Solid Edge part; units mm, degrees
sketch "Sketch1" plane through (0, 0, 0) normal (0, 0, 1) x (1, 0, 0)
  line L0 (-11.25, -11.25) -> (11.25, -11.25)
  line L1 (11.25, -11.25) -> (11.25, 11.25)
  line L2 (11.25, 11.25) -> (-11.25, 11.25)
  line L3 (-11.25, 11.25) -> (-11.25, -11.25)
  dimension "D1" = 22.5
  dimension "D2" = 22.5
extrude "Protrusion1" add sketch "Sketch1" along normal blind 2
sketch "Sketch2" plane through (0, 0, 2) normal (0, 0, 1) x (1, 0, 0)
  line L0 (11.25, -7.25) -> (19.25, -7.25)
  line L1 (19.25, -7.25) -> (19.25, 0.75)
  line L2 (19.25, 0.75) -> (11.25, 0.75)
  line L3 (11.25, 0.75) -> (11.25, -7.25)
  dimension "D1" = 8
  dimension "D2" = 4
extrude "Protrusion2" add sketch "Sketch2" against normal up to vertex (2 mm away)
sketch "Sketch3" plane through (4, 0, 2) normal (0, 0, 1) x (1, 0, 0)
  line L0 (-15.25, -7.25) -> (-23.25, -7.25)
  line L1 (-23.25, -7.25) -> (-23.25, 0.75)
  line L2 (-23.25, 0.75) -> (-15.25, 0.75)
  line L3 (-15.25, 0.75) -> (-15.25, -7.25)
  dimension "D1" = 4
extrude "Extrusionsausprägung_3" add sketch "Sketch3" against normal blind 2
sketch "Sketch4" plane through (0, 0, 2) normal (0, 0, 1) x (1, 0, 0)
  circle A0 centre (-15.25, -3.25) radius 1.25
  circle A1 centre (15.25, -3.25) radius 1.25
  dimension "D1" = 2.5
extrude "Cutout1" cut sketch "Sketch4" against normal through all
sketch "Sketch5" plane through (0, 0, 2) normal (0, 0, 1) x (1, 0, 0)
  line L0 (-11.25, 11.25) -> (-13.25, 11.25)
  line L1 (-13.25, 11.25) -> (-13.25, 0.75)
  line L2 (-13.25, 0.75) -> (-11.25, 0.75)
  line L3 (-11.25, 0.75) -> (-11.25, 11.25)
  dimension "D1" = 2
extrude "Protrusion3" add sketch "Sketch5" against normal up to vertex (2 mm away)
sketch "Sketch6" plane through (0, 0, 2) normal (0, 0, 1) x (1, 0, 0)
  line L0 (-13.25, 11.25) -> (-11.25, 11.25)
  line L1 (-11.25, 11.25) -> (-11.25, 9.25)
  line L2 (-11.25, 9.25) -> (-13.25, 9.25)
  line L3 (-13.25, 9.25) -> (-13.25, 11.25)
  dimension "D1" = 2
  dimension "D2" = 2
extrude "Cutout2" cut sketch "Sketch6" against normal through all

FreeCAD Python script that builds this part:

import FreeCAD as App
import Part
import Sketcher

V = App.Vector
Q = App.Units.Quantity

doc = App.newDocument("Part")
params = doc.addObject("Spreadsheet::Sheet", "Params")
for row, (alias, value) in enumerate([
    ("pad1_length", "2 mm"),
    ("sketch2_width", "8 mm"),
    ("pad2_length", "2 mm"),
    ("sketch3_width", "8 mm"),
    ("pad3_length", "2 mm"),
    ("sketch4_diameter", "2.5 mm"),
    ("sketch5_width", "2 mm"),
    ("sketch5_height", "10.5 mm"),
    ("pad4_length", "2 mm"),
    ("sketch6_width", "2 mm"),
], start=1):
    params.set(f"A{row}", alias)
    params.set(f"B{row}", "=" + value)
    params.setAlias(f"B{row}", alias)

body = doc.addObject("PartDesign::Body", "Body")

sketch1 = doc.addObject("Sketcher::SketchObject", "Sketch")
body.addObject(sketch1)
sketch1.AttachmentSupport = (doc.XY_Plane, [""])
sketch1.MapMode = "FlatFace"
sketch1.addGeometry(Part.LineSegment(V(-11, 11, 0), V(-11, -11, 0)), False)
sketch1.addGeometry(Part.LineSegment(V(-11, -11, 0), V(11, -11, 0)), False)
sketch1.addGeometry(Part.LineSegment(V(11, -11, 0), V(11, 11, 0)), False)
sketch1.addGeometry(Part.LineSegment(V(11, 11, 0), V(-11, 11, 0)), False)
sketch1.addConstraint(Sketcher.Constraint("Coincident", 0, 2, 1, 1))
sketch1.addConstraint(Sketcher.Constraint("Coincident", 1, 2, 2, 1))
sketch1.addConstraint(Sketcher.Constraint("Coincident", 2, 2, 3, 1))
sketch1.addConstraint(Sketcher.Constraint("Coincident", 3, 2, 0, 1))
sketch1.addConstraint(Sketcher.Constraint("Vertical", 0))
sketch1.addConstraint(Sketcher.Constraint("Horizontal", 1))
sketch1.addConstraint(Sketcher.Constraint("Vertical", 2))
sketch1.addConstraint(Sketcher.Constraint("Horizontal", 3))
sketch1.addConstraint(Sketcher.Constraint("Symmetric", 0, 2, 2, 2, -1, 1))
sketch1.addConstraint(Sketcher.Constraint("Equal", 3, 0))
sketch1.addConstraint(Sketcher.Constraint("DistanceX", 0, 2, -1, 1, Q("11.25 mm")))
pad1 = doc.addObject("PartDesign::Pad", "Pad")
body.addObject(pad1)
pad1.Profile = sketch1
pad1.setExpression("Length", "Params.pad1_length")

sketch2 = doc.addObject("Sketcher::SketchObject", "Sketch001")
body.addObject(sketch2)
sketch2.AttachmentSupport = (doc.XY_Plane, [""])
sketch2.MapMode = "FlatFace"
sketch2.AttachmentOffset = App.Placement(V(0, 0, 2), App.Rotation())
sketch2.addGeometry(Part.LineSegment(V(11, 1, 0), V(11, -7, 0)), False)
sketch2.addGeometry(Part.LineSegment(V(11, -7, 0), V(19, -7, 0)), False)
sketch2.addGeometry(Part.LineSegment(V(19, -7, 0), V(19, 1, 0)), False)
sketch2.addGeometry(Part.LineSegment(V(19, 1, 0), V(11, 1, 0)), False)
sketch2.addConstraint(Sketcher.Constraint("Coincident", 0, 2, 1, 1))
sketch2.addConstraint(Sketcher.Constraint("Coincident", 1, 2, 2, 1))
sketch2.addConstraint(Sketcher.Constraint("Coincident", 2, 2, 3, 1))
sketch2.addConstraint(Sketcher.Constraint("Coincident", 3, 2, 0, 1))
sketch2.addConstraint(Sketcher.Constraint("Vertical", 0))
sketch2.addConstraint(Sketcher.Constraint("Horizontal", 1))
sketch2.addConstraint(Sketcher.Constraint("Vertical", 2))
sketch2.addConstraint(Sketcher.Constraint("Horizontal", 3))
sketch2.addConstraint(Sketcher.Constraint("Equal", 3, 0))
sketch2.addConstraint(Sketcher.Constraint("DistanceX", 1, 1, 1, 2, Q("8 mm")))
sketch2.addConstraint(Sketcher.Constraint("DistanceX", -1, 1, 1, 2, Q("19.25 mm")))
sketch2.addConstraint(Sketcher.Constraint("DistanceY", 0, 2, -1, 1, Q("7.25 mm")))
sketch2.setExpression("Constraints[9]", "Params.sketch2_width")
pad2 = doc.addObject("PartDesign::Pad", "Pad001")
body.addObject(pad2)
pad2.Profile = sketch2
pad2.setExpression("Length", "Params.pad2_length")
pad2.Reversed = True

sketch3 = doc.addObject("Sketcher::SketchObject", "Sketch002")
body.addObject(sketch3)
sketch3.AttachmentSupport = (doc.XY_Plane, [""])
sketch3.MapMode = "FlatFace"
sketch3.AttachmentOffset = App.Placement(V(0, 0, 2), App.Rotation())
sketch3.addGeometry(Part.LineSegment(V(-19, -7, 0), V(-11, -7, 0)), False)
sketch3.addGeometry(Part.LineSegment(V(-11, -7, 0), V(-11, 1, 0)), False)
sketch3.addGeometry(Part.LineSegment(V(-11, 1, 0), V(-19, 1, 0)), False)
sketch3.addGeometry(Part.LineSegment(V(-19, 1, 0), V(-19, -7, 0)), False)
sketch3.addConstraint(Sketcher.Constraint("Coincident", 0, 2, 1, 1))
sketch3.addConstraint(Sketcher.Constraint("Coincident", 1, 2, 2, 1))
sketch3.addConstraint(Sketcher.Constraint("Coincident", 2, 2, 3, 1))
sketch3.addConstraint(Sketcher.Constraint("Coincident", 3, 2, 0, 1))
sketch3.addConstraint(Sketcher.Constraint("Horizontal", 0))
sketch3.addConstraint(Sketcher.Constraint("Vertical", 1))
sketch3.addConstraint(Sketcher.Constraint("Horizontal", 2))
sketch3.addConstraint(Sketcher.Constraint("Vertical", 3))
sketch3.addConstraint(Sketcher.Constraint("Equal", 2, 1))
sketch3.addConstraint(Sketcher.Constraint("DistanceX", 0, 1, 0, 2, Q("8 mm")))
sketch3.addConstraint(Sketcher.Constraint("DistanceX", 0, 2, -1, 1, Q("11.25 mm")))
sketch3.addConstraint(Sketcher.Constraint("DistanceY", 0, 2, -1, 1, Q("7.25 mm")))
sketch3.setExpression("Constraints[9]", "Params.sketch3_width")
pad3 = doc.addObject("PartDesign::Pad", "Pad002")
body.addObject(pad3)
pad3.Profile = sketch3
pad3.setExpression("Length", "Params.pad3_length")
pad3.Reversed = True

sketch4 = doc.addObject("Sketcher::SketchObject", "Sketch003")
body.addObject(sketch4)
sketch4.AttachmentSupport = (doc.XY_Plane, [""])
sketch4.MapMode = "FlatFace"
sketch4.AttachmentOffset = App.Placement(V(0, 0, 2), App.Rotation())
sketch4.addGeometry(Part.Circle(V(-15.2, -3.2, 0), V(0, 0, 1), 1.2), False)
sketch4.addGeometry(Part.Circle(V(15.2, -3.2, 0), V(0, 0, 1), 1.2), False)
sketch4.addConstraint(Sketcher.Constraint("Equal", 0, 1))
sketch4.addConstraint(Sketcher.Constraint("Symmetric", 0, 3, 1, 3, -2))
sketch4.addConstraint(Sketcher.Constraint("Diameter", 0, Q("2.5 mm")))
sketch4.addConstraint(Sketcher.Constraint("DistanceX", 0, 3, 1, 3, Q("30.5 mm")))
sketch4.addConstraint(Sketcher.Constraint("DistanceY", 0, 3, -1, 1, Q("3.25 mm")))
sketch4.setExpression("Constraints[2]", "Params.sketch4_diameter")
pocket1 = doc.addObject("PartDesign::Pocket", "Pocket")
body.addObject(pocket1)
pocket1.Profile = sketch4
pocket1.Type = "ThroughAll"

sketch5 = doc.addObject("Sketcher::SketchObject", "Sketch004")
body.addObject(sketch5)
sketch5.AttachmentSupport = (doc.XY_Plane, [""])
sketch5.MapMode = "FlatFace"
sketch5.AttachmentOffset = App.Placement(V(0, 0, 2), App.Rotation())
sketch5.addGeometry(Part.LineSegment(V(-11.2, 0.8, 0), V(-11.2, 11.2, 0)), False)
sketch5.addGeometry(Part.LineSegment(V(-11.2, 11.2, 0), V(-13.2, 11.2, 0)), False)
sketch5.addGeometry(Part.LineSegment(V(-13.2, 11.2, 0), V(-13.2, 0.8, 0)), False)
sketch5.addGeometry(Part.LineSegment(V(-13.2, 0.8, 0), V(-11.2, 0.8, 0)), False)
sketch5.addConstraint(Sketcher.Constraint("Coincident", 0, 2, 1, 1))
sketch5.addConstraint(Sketcher.Constraint("Coincident", 1, 2, 2, 1))
sketch5.addConstraint(Sketcher.Constraint("Coincident", 2, 2, 3, 1))
sketch5.addConstraint(Sketcher.Constraint("Coincident", 3, 2, 0, 1))
sketch5.addConstraint(Sketcher.Constraint("Vertical", 0))
sketch5.addConstraint(Sketcher.Constraint("Horizontal", 1))
sketch5.addConstraint(Sketcher.Constraint("Vertical", 2))
sketch5.addConstraint(Sketcher.Constraint("Horizontal", 3))
sketch5.addConstraint(Sketcher.Constraint("DistanceX", 1, 2, 1, 1, Q("2 mm")))
sketch5.addConstraint(Sketcher.Constraint("DistanceX", 0, 2, -1, 1, Q("11.25 mm")))
sketch5.addConstraint(Sketcher.Constraint("DistanceY", -1, 1, 0, 2, Q("11.25 mm")))
sketch5.addConstraint(Sketcher.Constraint("DistanceY", 0, 1, 0, 2, Q("10.5 mm")))
sketch5.setExpression("Constraints[8]", "Params.sketch5_width")
sketch5.setExpression("Constraints[11]", "Params.sketch5_height")
pad4 = doc.addObject("PartDesign::Pad", "Pad003")
body.addObject(pad4)
pad4.Profile = sketch5
pad4.setExpression("Length", "Params.pad4_length")
pad4.Reversed = True

sketch6 = doc.addObject("Sketcher::SketchObject", "Sketch005")
body.addObject(sketch6)
sketch6.AttachmentSupport = (doc.XY_Plane, [""])
sketch6.MapMode = "FlatFace"
sketch6.AttachmentOffset = App.Placement(V(0, 0, 2), App.Rotation())
sketch6.addGeometry(Part.LineSegment(V(-11.2, 11.2, 0), V(-13.2, 11.2, 0)), False)
sketch6.addGeometry(Part.LineSegment(V(-13.2, 11.2, 0), V(-13.2, 9.2, 0)), False)
sketch6.addGeometry(Part.LineSegment(V(-13.2, 9.2, 0), V(-11.2, 9.2, 0)), False)
sketch6.addGeometry(Part.LineSegment(V(-11.2, 9.2, 0), V(-11.2, 11.2, 0)), False)
sketch6.addConstraint(Sketcher.Constraint("Coincident", 0, 2, 1, 1))
sketch6.addConstraint(Sketcher.Constraint("Coincident", 1, 2, 2, 1))
sketch6.addConstraint(Sketcher.Constraint("Coincident", 2, 2, 3, 1))
sketch6.addConstraint(Sketcher.Constraint("Coincident", 3, 2, 0, 1))
sketch6.addConstraint(Sketcher.Constraint("Horizontal", 0))
sketch6.addConstraint(Sketcher.Constraint("Vertical", 1))
sketch6.addConstraint(Sketcher.Constraint("Horizontal", 2))
sketch6.addConstraint(Sketcher.Constraint("Vertical", 3))
sketch6.addConstraint(Sketcher.Constraint("Equal", 2, 1))
sketch6.addConstraint(Sketcher.Constraint("DistanceX", 0, 2, 0, 1, Q("2 mm")))
sketch6.addConstraint(Sketcher.Constraint("DistanceY", -1, 1, 0, 2, Q("11.25 mm")))
sketch6.addConstraint(Sketcher.Constraint("DistanceX", 2, 2, -1, 1, Q("11.25 mm")))
sketch6.setExpression("Constraints[9]", "Params.sketch6_width")
pocket2 = doc.addObject("PartDesign::Pocket", "Pocket001")
body.addObject(pocket2)
pocket2.Profile = sketch6
pocket2.Type = "ThroughAll"

doc.recompute()
